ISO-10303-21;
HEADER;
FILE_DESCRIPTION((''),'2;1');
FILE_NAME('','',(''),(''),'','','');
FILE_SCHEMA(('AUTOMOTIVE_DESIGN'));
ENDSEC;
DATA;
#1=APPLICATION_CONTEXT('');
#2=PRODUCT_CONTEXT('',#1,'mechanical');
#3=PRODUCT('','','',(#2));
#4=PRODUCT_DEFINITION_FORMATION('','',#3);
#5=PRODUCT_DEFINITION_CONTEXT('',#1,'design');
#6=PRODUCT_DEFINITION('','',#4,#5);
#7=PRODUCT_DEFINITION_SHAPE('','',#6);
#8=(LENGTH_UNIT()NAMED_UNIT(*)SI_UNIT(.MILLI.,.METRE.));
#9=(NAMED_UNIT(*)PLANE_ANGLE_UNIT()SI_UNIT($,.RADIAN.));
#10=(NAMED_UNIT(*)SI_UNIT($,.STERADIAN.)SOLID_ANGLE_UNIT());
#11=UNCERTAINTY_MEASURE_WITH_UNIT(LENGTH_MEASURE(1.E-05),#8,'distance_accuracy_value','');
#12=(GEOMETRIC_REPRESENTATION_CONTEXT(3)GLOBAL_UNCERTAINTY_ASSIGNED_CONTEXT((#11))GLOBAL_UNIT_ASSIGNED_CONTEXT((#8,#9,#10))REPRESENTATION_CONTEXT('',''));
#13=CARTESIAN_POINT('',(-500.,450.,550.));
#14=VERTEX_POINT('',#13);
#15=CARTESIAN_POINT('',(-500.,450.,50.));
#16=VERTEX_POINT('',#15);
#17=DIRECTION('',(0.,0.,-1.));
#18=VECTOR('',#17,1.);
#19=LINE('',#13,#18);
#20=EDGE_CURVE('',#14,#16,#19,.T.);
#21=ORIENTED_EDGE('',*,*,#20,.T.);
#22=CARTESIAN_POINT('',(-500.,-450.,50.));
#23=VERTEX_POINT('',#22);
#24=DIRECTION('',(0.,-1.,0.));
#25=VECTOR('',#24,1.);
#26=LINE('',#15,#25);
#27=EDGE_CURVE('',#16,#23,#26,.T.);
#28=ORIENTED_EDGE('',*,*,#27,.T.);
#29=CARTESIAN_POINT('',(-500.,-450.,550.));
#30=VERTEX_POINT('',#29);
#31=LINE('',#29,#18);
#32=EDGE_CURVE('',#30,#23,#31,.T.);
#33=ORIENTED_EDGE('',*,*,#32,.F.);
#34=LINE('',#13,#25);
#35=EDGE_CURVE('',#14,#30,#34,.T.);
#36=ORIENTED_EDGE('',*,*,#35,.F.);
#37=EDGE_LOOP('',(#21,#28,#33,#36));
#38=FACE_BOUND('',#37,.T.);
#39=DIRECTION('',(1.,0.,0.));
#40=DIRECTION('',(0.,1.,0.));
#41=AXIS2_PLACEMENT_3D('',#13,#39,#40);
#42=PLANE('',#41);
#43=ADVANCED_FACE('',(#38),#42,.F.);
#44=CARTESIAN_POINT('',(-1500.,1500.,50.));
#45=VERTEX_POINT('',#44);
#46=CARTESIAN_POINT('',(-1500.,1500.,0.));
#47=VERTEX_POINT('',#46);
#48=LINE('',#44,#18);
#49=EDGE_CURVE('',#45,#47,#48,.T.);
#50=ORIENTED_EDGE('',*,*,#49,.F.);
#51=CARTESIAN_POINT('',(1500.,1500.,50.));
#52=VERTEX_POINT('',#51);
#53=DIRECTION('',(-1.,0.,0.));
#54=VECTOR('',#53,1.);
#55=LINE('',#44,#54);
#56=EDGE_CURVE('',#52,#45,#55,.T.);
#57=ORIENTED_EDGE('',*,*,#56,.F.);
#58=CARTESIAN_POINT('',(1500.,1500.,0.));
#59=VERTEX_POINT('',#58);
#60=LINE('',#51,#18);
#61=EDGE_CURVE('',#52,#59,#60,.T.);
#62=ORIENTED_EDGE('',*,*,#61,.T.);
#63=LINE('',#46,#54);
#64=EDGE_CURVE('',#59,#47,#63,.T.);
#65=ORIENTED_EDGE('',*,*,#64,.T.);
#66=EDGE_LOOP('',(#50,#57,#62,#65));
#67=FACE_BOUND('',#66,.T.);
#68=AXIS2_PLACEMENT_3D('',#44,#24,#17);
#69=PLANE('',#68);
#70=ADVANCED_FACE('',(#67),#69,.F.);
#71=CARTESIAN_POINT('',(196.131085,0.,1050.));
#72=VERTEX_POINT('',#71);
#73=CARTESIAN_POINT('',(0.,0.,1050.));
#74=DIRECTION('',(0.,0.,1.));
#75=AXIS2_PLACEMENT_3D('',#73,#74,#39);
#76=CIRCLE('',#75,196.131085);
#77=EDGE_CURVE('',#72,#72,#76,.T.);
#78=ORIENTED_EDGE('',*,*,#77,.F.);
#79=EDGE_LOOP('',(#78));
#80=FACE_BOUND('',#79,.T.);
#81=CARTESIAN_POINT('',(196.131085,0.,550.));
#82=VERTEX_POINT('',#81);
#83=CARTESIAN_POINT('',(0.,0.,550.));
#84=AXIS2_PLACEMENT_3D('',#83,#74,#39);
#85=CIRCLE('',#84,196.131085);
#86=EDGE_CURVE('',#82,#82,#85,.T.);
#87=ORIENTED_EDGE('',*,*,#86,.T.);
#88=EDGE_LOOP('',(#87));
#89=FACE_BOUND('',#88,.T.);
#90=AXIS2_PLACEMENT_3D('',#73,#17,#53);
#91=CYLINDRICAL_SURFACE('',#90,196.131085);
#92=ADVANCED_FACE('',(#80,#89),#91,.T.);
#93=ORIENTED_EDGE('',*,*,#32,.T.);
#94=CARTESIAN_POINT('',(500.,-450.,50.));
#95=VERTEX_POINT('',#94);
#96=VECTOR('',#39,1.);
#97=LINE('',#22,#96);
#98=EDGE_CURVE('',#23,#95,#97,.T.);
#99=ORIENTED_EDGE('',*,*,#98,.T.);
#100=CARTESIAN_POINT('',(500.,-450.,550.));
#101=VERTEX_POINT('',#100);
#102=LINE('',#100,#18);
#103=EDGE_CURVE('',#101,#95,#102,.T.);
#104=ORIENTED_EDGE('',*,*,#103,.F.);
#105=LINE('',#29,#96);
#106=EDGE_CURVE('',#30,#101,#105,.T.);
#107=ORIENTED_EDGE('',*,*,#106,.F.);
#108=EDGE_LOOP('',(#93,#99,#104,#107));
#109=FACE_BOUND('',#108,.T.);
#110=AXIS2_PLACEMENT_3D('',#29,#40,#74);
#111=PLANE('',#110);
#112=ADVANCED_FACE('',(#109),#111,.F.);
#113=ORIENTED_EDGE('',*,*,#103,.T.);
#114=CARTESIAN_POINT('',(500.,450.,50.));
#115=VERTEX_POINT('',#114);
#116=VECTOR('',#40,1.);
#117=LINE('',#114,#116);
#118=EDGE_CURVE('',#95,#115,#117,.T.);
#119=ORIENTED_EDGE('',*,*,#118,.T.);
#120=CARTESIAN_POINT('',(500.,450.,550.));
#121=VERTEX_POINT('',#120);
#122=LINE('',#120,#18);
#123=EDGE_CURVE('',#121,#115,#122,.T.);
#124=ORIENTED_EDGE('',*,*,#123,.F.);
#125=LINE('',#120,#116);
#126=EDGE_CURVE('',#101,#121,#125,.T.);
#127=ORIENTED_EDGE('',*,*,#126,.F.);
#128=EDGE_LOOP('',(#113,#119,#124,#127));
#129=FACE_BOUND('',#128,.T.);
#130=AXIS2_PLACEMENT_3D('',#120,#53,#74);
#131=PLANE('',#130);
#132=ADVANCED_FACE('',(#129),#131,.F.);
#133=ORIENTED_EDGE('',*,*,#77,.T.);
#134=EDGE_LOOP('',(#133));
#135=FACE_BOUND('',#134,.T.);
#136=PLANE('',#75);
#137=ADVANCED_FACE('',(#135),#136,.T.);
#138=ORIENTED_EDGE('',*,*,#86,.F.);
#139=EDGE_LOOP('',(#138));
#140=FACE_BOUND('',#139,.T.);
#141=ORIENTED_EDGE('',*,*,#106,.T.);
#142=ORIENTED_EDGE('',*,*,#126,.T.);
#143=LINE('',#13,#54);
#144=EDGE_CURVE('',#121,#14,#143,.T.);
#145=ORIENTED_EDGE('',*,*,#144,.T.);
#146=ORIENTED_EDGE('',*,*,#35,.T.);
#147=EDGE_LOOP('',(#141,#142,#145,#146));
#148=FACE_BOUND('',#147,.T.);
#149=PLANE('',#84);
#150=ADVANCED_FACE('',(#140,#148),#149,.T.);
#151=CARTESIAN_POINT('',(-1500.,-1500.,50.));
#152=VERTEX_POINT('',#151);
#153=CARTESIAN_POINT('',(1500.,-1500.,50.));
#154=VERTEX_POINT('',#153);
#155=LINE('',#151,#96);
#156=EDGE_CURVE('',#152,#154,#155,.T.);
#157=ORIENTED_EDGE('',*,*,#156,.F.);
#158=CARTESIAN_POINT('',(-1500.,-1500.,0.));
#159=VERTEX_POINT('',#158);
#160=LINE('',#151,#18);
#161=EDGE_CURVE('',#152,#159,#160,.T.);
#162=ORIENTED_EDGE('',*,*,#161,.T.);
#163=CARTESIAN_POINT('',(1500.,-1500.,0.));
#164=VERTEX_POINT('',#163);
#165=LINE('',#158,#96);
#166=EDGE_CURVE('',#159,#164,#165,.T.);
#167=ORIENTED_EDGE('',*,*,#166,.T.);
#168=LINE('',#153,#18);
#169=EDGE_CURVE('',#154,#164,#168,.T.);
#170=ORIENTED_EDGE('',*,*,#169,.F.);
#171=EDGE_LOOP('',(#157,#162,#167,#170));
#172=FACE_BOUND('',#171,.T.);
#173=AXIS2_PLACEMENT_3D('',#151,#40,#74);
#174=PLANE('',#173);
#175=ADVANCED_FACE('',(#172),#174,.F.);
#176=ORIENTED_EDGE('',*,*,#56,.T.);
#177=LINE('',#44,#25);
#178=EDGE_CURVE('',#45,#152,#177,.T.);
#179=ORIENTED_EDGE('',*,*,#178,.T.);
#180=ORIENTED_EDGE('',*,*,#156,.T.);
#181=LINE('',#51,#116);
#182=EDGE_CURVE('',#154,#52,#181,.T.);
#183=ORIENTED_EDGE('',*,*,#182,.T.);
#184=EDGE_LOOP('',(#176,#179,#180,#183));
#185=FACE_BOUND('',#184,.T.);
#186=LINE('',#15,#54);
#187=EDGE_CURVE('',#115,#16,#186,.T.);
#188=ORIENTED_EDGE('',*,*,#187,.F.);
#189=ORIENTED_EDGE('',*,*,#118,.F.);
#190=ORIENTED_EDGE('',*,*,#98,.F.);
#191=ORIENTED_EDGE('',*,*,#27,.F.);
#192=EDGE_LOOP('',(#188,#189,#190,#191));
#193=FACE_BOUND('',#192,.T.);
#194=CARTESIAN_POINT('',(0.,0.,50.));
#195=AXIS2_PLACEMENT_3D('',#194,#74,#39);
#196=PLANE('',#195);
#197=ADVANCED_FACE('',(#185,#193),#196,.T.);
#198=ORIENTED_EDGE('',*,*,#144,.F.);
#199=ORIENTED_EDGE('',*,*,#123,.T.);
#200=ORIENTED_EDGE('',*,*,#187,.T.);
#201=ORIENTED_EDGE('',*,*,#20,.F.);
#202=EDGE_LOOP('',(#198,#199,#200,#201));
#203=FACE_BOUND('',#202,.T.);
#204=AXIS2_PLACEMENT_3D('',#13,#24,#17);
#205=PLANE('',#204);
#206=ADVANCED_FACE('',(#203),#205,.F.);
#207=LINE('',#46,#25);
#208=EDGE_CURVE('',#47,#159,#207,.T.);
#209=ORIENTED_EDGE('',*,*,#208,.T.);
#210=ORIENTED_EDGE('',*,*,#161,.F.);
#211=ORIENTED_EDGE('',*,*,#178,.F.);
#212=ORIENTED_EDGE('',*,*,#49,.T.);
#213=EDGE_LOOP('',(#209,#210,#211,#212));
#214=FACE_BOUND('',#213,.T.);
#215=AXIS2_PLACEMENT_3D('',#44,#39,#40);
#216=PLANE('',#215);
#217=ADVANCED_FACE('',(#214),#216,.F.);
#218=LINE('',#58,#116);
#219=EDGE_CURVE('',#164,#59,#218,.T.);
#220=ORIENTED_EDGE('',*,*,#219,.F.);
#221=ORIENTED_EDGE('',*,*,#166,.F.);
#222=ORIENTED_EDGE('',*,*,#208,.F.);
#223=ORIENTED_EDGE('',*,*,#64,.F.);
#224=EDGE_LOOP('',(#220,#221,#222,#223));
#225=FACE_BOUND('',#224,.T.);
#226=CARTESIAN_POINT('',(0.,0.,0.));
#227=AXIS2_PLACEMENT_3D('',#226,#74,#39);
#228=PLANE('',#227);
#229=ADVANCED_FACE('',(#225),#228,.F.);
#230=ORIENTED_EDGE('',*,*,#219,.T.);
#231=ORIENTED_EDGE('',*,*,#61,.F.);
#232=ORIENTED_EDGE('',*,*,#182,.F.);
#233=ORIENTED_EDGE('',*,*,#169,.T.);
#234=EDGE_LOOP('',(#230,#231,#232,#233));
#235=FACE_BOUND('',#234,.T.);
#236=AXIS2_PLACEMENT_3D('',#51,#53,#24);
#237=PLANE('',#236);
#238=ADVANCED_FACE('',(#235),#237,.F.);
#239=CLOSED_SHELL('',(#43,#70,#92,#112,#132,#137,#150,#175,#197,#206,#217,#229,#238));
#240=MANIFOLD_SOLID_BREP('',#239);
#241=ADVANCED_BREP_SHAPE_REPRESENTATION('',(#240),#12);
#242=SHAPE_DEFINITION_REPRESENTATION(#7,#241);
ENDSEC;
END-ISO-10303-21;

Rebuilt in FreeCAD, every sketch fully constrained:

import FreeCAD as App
import Part
import Sketcher
from FreeCAD import Vector


def add_polygon(sketch, points):
    """Adds a closed chain of lines whose ends are joined by coincident constraints."""
    first, n = sketch.GeometryCount, len(points)
    for a, b in zip(points, points[1:] + points[:1]):
        sketch.addGeometry(Part.LineSegment(App.Vector(*a, 0), App.Vector(*b, 0)), False)
    for i in range(n):
        sketch.addConstraint(Sketcher.Constraint("Coincident", first + i, 2, first + (i + 1) % n, 1))

doc = App.newDocument("Part")
body = doc.addObject("PartDesign::Body", "Body")

# Sketch on XY plane
sketch1 = doc.addObject("Sketcher::SketchObject", "Sketch")
body.addObject(sketch1)
sketch1.AttachmentSupport = (doc.XY_Plane, [""])
sketch1.MapMode = "FlatFace"
add_polygon(sketch1, [(-1500, 1500), (-1500, -1500), (1500, -1500), (1500, 1500)])  # lines 0-3
sketch1.addConstraint([
    Sketcher.Constraint("Vertical", 0),
    Sketcher.Constraint("Horizontal", 1),
    Sketcher.Constraint("Vertical", 2),
    Sketcher.Constraint("Horizontal", 3),
    Sketcher.Constraint("Symmetric", 0, 2, 2, 2, -1, 1),
    Sketcher.Constraint("Equal", 3, 0),
    Sketcher.Constraint("DistanceX", 1, 1, 1, 2, 3000.0),
])
pad1 = doc.addObject("PartDesign::Pad", "Pad")
body.addObject(pad1)
pad1.Profile = sketch1
pad1.Length = 50

# Sketch on XY plane
sketch2 = doc.addObject("Sketcher::SketchObject", "Sketch001")
body.addObject(sketch2)
sketch2.AttachmentSupport = (doc.XY_Plane, [""])
sketch2.MapMode = "FlatFace"
sketch2.AttachmentOffset = App.Placement(Vector(0, 0, 50), App.Rotation())
add_polygon(sketch2, [(-500, 450), (-500, -450), (500, -450), (500, 450)])  # lines 0-3
sketch2.addConstraint([
    Sketcher.Constraint("Vertical", 0),
    Sketcher.Constraint("Horizontal", 1),
    Sketcher.Constraint("Vertical", 2),
    Sketcher.Constraint("Horizontal", 3),
    Sketcher.Constraint("Symmetric", 0, 2, 2, 2, -1, 1),
    Sketcher.Constraint("DistanceX", 1, 1, 1, 2, 1000.0),
    Sketcher.Constraint("DistanceY", 0, 2, 0, 1, 900.0),
])
pad2 = doc.addObject("PartDesign::Pad", "Pad001")
body.addObject(pad2)
pad2.Profile = sketch2
pad2.Length = 500

# Sketch on XY plane
sketch3 = doc.addObject("Sketcher::SketchObject", "Sketch002")
body.addObject(sketch3)
sketch3.AttachmentSupport = (doc.XY_Plane, [""])
sketch3.MapMode = "FlatFace"
sketch3.AttachmentOffset = App.Placement(Vector(0, 0, 550), App.Rotation())
sketch3.addGeometry(Part.Circle(Vector(0, 0, 0), Vector(0, 0, 1), 196), False)
sketch3.addConstraint([
    Sketcher.Constraint("Coincident", 0, 3, -1, 1),
    Sketcher.Constraint("Diameter", 0, 392.262171),
])
pad3 = doc.addObject("PartDesign::Pad", "Pad002")
body.addObject(pad3)
pad3.Profile = sketch3
pad3.Length = 500

doc.recompute()
